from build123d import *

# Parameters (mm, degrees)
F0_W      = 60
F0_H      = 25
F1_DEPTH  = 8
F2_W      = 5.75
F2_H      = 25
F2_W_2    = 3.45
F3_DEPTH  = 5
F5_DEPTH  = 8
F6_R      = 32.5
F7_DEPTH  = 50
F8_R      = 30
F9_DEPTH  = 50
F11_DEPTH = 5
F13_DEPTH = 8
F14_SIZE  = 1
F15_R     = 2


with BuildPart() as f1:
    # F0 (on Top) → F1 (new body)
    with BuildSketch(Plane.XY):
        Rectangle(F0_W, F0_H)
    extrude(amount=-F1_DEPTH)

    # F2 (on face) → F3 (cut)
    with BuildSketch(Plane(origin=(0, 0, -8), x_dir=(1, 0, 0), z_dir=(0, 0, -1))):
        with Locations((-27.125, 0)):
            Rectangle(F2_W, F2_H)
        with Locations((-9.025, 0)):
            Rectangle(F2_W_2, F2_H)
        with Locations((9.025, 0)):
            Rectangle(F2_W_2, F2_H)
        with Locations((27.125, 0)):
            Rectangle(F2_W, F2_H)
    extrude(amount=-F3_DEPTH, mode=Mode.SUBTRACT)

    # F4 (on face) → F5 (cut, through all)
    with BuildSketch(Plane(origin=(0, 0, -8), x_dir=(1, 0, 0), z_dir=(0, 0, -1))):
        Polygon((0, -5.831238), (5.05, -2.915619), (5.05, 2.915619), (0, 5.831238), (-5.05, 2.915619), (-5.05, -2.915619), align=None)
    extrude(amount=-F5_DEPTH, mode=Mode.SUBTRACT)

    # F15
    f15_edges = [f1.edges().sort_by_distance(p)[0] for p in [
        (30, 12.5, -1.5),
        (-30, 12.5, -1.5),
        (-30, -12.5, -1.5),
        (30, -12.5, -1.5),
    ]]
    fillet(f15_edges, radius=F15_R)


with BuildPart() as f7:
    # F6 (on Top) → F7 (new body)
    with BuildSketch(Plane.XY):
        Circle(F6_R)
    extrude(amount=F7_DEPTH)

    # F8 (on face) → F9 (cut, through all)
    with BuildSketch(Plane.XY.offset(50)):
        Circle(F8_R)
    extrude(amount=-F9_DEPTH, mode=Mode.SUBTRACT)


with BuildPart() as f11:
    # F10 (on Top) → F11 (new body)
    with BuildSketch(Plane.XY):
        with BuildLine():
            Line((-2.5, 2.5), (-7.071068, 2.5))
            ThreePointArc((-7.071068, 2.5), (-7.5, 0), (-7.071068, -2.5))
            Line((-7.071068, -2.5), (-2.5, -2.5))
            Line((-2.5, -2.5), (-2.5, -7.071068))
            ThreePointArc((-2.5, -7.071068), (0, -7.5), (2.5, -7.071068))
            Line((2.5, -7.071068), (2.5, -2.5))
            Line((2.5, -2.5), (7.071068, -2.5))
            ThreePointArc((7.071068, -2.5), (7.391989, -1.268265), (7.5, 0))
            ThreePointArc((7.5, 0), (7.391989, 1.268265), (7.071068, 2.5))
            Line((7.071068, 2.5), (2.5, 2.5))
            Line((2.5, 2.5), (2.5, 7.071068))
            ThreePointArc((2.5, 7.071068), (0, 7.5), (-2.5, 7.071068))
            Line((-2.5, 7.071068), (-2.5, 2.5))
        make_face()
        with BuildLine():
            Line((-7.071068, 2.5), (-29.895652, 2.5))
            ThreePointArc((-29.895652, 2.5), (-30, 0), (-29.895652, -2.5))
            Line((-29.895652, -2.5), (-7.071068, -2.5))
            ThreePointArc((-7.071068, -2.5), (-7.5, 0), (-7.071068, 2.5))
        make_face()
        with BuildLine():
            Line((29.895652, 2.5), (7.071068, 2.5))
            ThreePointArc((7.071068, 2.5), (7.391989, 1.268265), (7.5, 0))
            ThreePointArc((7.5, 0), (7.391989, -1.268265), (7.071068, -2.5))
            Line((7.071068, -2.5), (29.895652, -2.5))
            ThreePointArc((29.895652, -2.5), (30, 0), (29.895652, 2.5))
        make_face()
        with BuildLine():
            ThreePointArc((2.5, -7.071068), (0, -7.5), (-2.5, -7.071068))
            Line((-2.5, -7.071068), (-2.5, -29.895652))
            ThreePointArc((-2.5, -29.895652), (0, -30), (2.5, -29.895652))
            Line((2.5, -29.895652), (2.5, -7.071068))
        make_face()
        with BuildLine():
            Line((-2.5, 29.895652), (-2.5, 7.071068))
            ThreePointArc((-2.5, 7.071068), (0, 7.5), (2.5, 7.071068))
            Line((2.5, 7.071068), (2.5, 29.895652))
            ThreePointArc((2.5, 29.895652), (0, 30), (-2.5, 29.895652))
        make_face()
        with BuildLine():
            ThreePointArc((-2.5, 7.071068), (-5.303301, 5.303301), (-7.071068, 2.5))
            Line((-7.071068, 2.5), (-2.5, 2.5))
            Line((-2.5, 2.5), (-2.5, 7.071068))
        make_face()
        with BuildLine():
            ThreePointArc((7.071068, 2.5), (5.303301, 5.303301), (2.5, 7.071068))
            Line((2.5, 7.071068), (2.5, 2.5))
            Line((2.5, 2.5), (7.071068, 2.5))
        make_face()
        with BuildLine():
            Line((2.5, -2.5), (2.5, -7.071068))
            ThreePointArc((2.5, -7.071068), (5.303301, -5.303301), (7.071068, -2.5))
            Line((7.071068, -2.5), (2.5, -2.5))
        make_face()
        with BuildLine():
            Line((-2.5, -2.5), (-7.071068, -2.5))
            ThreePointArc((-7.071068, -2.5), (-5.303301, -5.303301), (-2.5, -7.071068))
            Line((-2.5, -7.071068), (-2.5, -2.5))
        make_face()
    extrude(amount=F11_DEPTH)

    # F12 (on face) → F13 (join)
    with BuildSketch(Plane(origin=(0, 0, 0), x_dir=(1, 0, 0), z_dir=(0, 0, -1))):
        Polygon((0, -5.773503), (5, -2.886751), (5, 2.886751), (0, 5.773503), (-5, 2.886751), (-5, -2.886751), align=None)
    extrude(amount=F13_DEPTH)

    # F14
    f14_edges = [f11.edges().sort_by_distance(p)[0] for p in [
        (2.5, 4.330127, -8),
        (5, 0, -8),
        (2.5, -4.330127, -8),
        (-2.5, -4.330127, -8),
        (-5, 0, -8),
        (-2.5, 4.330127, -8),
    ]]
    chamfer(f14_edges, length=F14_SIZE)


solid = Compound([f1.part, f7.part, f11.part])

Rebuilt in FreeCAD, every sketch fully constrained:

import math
import FreeCAD as App
import Part
import Sketcher
from FreeCAD import Vector
Q = App.Units.Quantity


def edges_at(feature, points):
    """Names of the edges that pass closest to the given points."""
    edges = feature.Shape.Edges
    near = lambda p: min(range(len(edges)), key=lambda i: edges[i].distToShape(Part.Vertex(*p))[0])
    return sorted({f"Edge{near(p) + 1}" for p in points})


def add_polygon(sketch, points):
    """Adds a closed chain of lines whose ends are joined by coincident constraints."""
    first, n = sketch.GeometryCount, len(points)
    for a, b in zip(points, points[1:] + points[:1]):
        sketch.addGeometry(Part.LineSegment(App.Vector(*a, 0), App.Vector(*b, 0)), False)
    for i in range(n):
        sketch.addConstraint(Sketcher.Constraint("Coincident", first + i, 2, first + (i + 1) % n, 1))

doc = App.newDocument("Part")
body = doc.addObject("PartDesign::Body", "Body")

# Sketch on XY plane
sketch1 = doc.addObject("Sketcher::SketchObject", "Sketch")
body.addObject(sketch1)
sketch1.AttachmentSupport = (doc.XY_Plane, [""])
sketch1.MapMode = "FlatFace"
add_polygon(sketch1, [(-30, 12), (-30, -12), (30, -12), (30, 12)])  # lines 0-3
sketch1.addConstraint(Sketcher.Constraint("Vertical", 0))
sketch1.addConstraint(Sketcher.Constraint("Horizontal", 1))
sketch1.addConstraint(Sketcher.Constraint("Vertical", 2))
sketch1.addConstraint(Sketcher.Constraint("Horizontal", 3))
sketch1.addConstraint(Sketcher.Constraint("Symmetric", 0, 2, 2, 2, -1, 1))
sketch1.addConstraint(Sketcher.Constraint("DistanceX", 1, 1, 1, 2, Q("60 mm")))
sketch1.addConstraint(Sketcher.Constraint("DistanceY", 0, 2, 0, 1, Q("25 mm")))
pad1 = doc.addObject("PartDesign::Pad", "Pad")
body.addObject(pad1)
pad1.Profile = sketch1
pad1.Length = 8
pad1.Reversed = True

# Sketch on XY plane
sketch2 = doc.addObject("Sketcher::SketchObject", "Sketch001")
body.addObject(sketch2)
sketch2.AttachmentSupport = (doc.XY_Plane, [""])
sketch2.MapMode = "FlatFace"
sketch2.AttachmentOffset = App.Placement(Vector(0, 0, -8), App.Rotation())
add_polygon(sketch2, [(-30, -12.5), (-30, 12.5), (-24.2, 12.5), (-24.2, -12.5)])  # lines 0-3
add_polygon(sketch2, [(-10.8, -12.5), (-10.8, 12.5), (-7.3, 12.5), (-7.3, -12.5)])  # lines 4-7
add_polygon(sketch2, [(7.3, -12.5), (7.3, 12.5), (10.8, 12.5), (10.8, -12.5)])  # lines 8-11
add_polygon(sketch2, [(24.2, -12.5), (24.2, 12.5), (30, 12.5), (30, -12.5)])  # lines 12-15
sketch2.addConstraint(Sketcher.Constraint("Vertical", 0))
sketch2.addConstraint(Sketcher.Constraint("Horizontal", 1))
sketch2.addConstraint(Sketcher.Constraint("Vertical", 2))
sketch2.addConstraint(Sketcher.Constraint("Horizontal", 3))
sketch2.addConstraint(Sketcher.Constraint("Vertical", 4))
sketch2.addConstraint(Sketcher.Constraint("Horizontal", 5))
sketch2.addConstraint(Sketcher.Constraint("Vertical", 6))
sketch2.addConstraint(Sketcher.Constraint("Horizontal", 7))
sketch2.addConstraint(Sketcher.Constraint("Vertical", 8))
sketch2.addConstraint(Sketcher.Constraint("Horizontal", 9))
sketch2.addConstraint(Sketcher.Constraint("Vertical", 10))
sketch2.addConstraint(Sketcher.Constraint("Horizontal", 11))
sketch2.addConstraint(Sketcher.Constraint("Vertical", 12))
sketch2.addConstraint(Sketcher.Constraint("Horizontal", 13))
sketch2.addConstraint(Sketcher.Constraint("Vertical", 14))
sketch2.addConstraint(Sketcher.Constraint("Horizontal", 15))
sketch2.addConstraint(Sketcher.Constraint("Symmetric", 6, 2, 8, 2, -1, 1))
sketch2.addConstraint(Sketcher.Constraint("Symmetric", 4, 2, 10, 2, -1, 1))
sketch2.addConstraint(Sketcher.Constraint("Symmetric", 2, 2, 12, 2, -1, 1))
sketch2.addConstraint(Sketcher.Constraint("Symmetric", 0, 2, 14, 2, -1, 1))
sketch2.addConstraint(Sketcher.Constraint("Horizontal", 1, 2, 4, 2))
sketch2.addConstraint(Sketcher.Constraint("Horizontal", 3, 2, 6, 2))
sketch2.addConstraint(Sketcher.Constraint("Horizontal", 5, 2, 8, 2))
sketch2.addConstraint(Sketcher.Constraint("DistanceY", 0, 1, 0, 2, Q("25 mm")))
sketch2.addConstraint(Sketcher.Constraint("DistanceX", 0, 2, -1, 1, Q("30 mm")))
sketch2.addConstraint(Sketcher.Constraint("DistanceX", 1, 1, 1, 2, Q("5.75 mm")))
sketch2.addConstraint(Sketcher.Constraint("DistanceX", 5, 1, 5, 2, Q("3.45 mm")))
sketch2.addConstraint(Sketcher.Constraint("DistanceX", 5, 2, -1, 1, Q("7.3 mm")))
pocket1 = doc.addObject("PartDesign::Pocket", "Pocket")
body.addObject(pocket1)
pocket1.Profile = sketch2
pocket1.Length = 5
pocket1.Reversed = True

# Sketch on XY plane
sketch3 = doc.addObject("Sketcher::SketchObject", "Sketch002")
body.addObject(sketch3)
sketch3.AttachmentSupport = (doc.XY_Plane, [""])
sketch3.MapMode = "FlatFace"
sketch3.AttachmentOffset = App.Placement(Vector(0, 0, -8), App.Rotation())
add_polygon(sketch3, [(0, 6), (5, 3), (5, -3), (0, -6), (-5, -3), (-5, 3)])  # lines 0-5
sketch3.addConstraint(Sketcher.Constraint("Vertical", 1))
sketch3.addConstraint(Sketcher.Constraint("Vertical", 4))
sketch3.addConstraint(Sketcher.Constraint("Symmetric", 0, 2, 3, 2, -1, 1))
sketch3.addConstraint(Sketcher.Constraint("Symmetric", 2, 2, 5, 2, -1, 1))
sketch3.addConstraint(Sketcher.Constraint("PointOnObject", 2, 2, -2))
sketch3.addConstraint(Sketcher.Constraint("Parallel", 2, 5))
sketch3.addConstraint(Sketcher.Constraint("Horizontal", 1, 2, 3, 2))
sketch3.addConstraint(Sketcher.Constraint("Angle", 0, Q("-30.000001 deg")))
sketch3.addConstraint(Sketcher.Constraint("DistanceX", 3, 2, 1, 2, Q("10.1 mm")))
sketch3.addConstraint(Sketcher.Constraint("DistanceY", 1, 2, 1, 1, Q("5.831238 mm")))
pocket2 = doc.addObject("PartDesign::Pocket", "Pocket001")
body.addObject(pocket2)
pocket2.Profile = sketch3
pocket2.Type = "ThroughAll"
pocket2.Reversed = True
doc.recompute()

fillet = doc.addObject("PartDesign::Fillet", "Fillet")
body.addObject(fillet)
fillet.Base = (pocket2, edges_at(pocket2, [
    (30, 12.5, -1.5),
    (-30, 12.5, -1.5),
    (-30, -12.5, -1.5),
    (30, -12.5, -1.5),
]))
fillet.Radius = 2
body2 = doc.addObject("PartDesign::Body", "Body001")

# Sketch on XY plane
sketch4 = doc.addObject("Sketcher::SketchObject", "Sketch003")
body2.addObject(sketch4)
sketch4.AttachmentSupport = (doc.getObject("XY_Plane001"), [""])
sketch4.MapMode = "FlatFace"
sketch4.addGeometry(Part.Circle(Vector(0, 0, 0), Vector(0, 0, 1), 32), False)
sketch4.addConstraint(Sketcher.Constraint("Coincident", 0, 3, -1, 1))
sketch4.addConstraint(Sketcher.Constraint("Diameter", 0, Q("65 mm")))
pad2 = doc.addObject("PartDesign::Pad", "Pad001")
body2.addObject(pad2)
pad2.Profile = sketch4
pad2.Length = 50

# Sketch on XY plane
sketch5 = doc.addObject("Sketcher::SketchObject", "Sketch004")
body2.addObject(sketch5)
sketch5.AttachmentSupport = (doc.getObject("XY_Plane001"), [""])
sketch5.MapMode = "FlatFace"
sketch5.AttachmentOffset = App.Placement(Vector(0, 0, 50), App.Rotation())
sketch5.addGeometry(Part.Circle(Vector(0, 0, 0), Vector(0, 0, 1), 30), False)
sketch5.addConstraint(Sketcher.Constraint("Coincident", 0, 3, -1, 1))
sketch5.addConstraint(Sketcher.Constraint("Diameter", 0, Q("60 mm")))
pocket3 = doc.addObject("PartDesign::Pocket", "Pocket002")
body2.addObject(pocket3)
pocket3.Profile = sketch5
pocket3.Type = "ThroughAll"
body3 = doc.addObject("PartDesign::Body", "Body002")

# Sketch on XY plane
sketch6 = doc.addObject("Sketcher::SketchObject", "Sketch005")
body3.addObject(sketch6)
sketch6.AttachmentSupport = (doc.getObject("XY_Plane002"), [""])
sketch6.MapMode = "FlatFace"
sketch6.addGeometry(Part.LineSegment(Vector(-7, 2, 0), Vector(-30, 2, 0)), False)
sketch6.addGeometry(Part.ArcOfCircle(Part.Circle(Vector(0, 0, 0), Vector(0, 0, 1), 30), math.radians(175.22), math.radians(184.78)), False)
sketch6.addGeometry(Part.LineSegment(Vector(-30, -2, 0), Vector(-7, -2, 0)), False)
sketch6.addGeometry(Part.ArcOfCircle(Part.Circle(Vector(0, 0, 0), Vector(0, 0, 1), 7), math.radians(-161), math.radians(-109)), False)
sketch6.addGeometry(Part.LineSegment(Vector(-2, -7, 0), Vector(-2, -30, 0)), False)
sketch6.addGeometry(Part.ArcOfCircle(Part.Circle(Vector(0, 0, 0), Vector(0, 0, 1), 30), math.radians(-94.78), math.radians(-85.22)), False)
sketch6.addGeometry(Part.LineSegment(Vector(2, -30, 0), Vector(2, -7, 0)), False)
sketch6.addGeometry(Part.ArcOfCircle(Part.Circle(Vector(0, 0, 0), Vector(0, 0, 1), 7), math.radians(-71), math.radians(-19)), False)
sketch6.addGeometry(Part.LineSegment(Vector(7, -2, 0), Vector(30, -2, 0)), False)
sketch6.addGeometry(Part.ArcOfCircle(Part.Circle(Vector(0, 0, 0), Vector(0, 0, 1), 30), math.radians(-4.78), math.radians(4.78)), False)
sketch6.addGeometry(Part.LineSegment(Vector(30, 2, 0), Vector(7, 2, 0)), False)
sketch6.addGeometry(Part.ArcOfCircle(Part.Circle(Vector(0, 0, 0), Vector(0, 0, 1), 7), math.radians(19), math.radians(71)), False)
sketch6.addGeometry(Part.LineSegment(Vector(2, 7, 0), Vector(2, 30, 0)), False)
sketch6.addGeometry(Part.ArcOfCircle(Part.Circle(Vector(0, 0, 0), Vector(0, 0, 1), 30), math.radians(85.22), math.radians(94.78)), False)
sketch6.addGeometry(Part.LineSegment(Vector(-2, 30, 0), Vector(-2, 7, 0)), False)
sketch6.addGeometry(Part.ArcOfCircle(Part.Circle(Vector(0, 0, 0), Vector(0, 0, 1), 7), math.radians(109), math.radians(161)), False)
sketch6.addConstraint(Sketcher.Constraint("Coincident", 0, 2, 1, 1))
sketch6.addConstraint(Sketcher.Constraint("Coincident", 1, 2, 2, 1))
sketch6.addConstraint(Sketcher.Constraint("Coincident", 2, 2, 3, 1))
sketch6.addConstraint(Sketcher.Constraint("Coincident", 3, 2, 4, 1))
sketch6.addConstraint(Sketcher.Constraint("Coincident", 4, 2, 5, 1))
sketch6.addConstraint(Sketcher.Constraint("Coincident", 5, 2, 6, 1))
sketch6.addConstraint(Sketcher.Constraint("Coincident", 6, 2, 7, 1))
sketch6.addConstraint(Sketcher.Constraint("Coincident", 7, 2, 8, 1))
sketch6.addConstraint(Sketcher.Constraint("Coincident", 8, 2, 9, 1))
sketch6.addConstraint(Sketcher.Constraint("Coincident", 9, 2, 10, 1))
sketch6.addConstraint(Sketcher.Constraint("Coincident", 10, 2, 11, 1))
sketch6.addConstraint(Sketcher.Constraint("Coincident", 11, 2, 12, 1))
sketch6.addConstraint(Sketcher.Constraint("Coincident", 12, 2, 13, 1))
sketch6.addConstraint(Sketcher.Constraint("Coincident", 13, 2, 14, 1))
sketch6.addConstraint(Sketcher.Constraint("Coincident", 14, 2, 15, 1))
sketch6.addConstraint(Sketcher.Constraint("Coincident", 15, 2, 0, 1))
sketch6.addConstraint(Sketcher.Constraint("Horizontal", 0))
sketch6.addConstraint(Sketcher.Constraint("Horizontal", 2))
sketch6.addConstraint(Sketcher.Constraint("Vertical", 4))
sketch6.addConstraint(Sketcher.Constraint("Vertical", 6))
sketch6.addConstraint(Sketcher.Constraint("Horizontal", 8))
sketch6.addConstraint(Sketcher.Constraint("Horizontal", 10))
sketch6.addConstraint(Sketcher.Constraint("Vertical", 12))
sketch6.addConstraint(Sketcher.Constraint("Vertical", 14))
sketch6.addConstraint(Sketcher.Constraint("Coincident", 3, 3, -1, 1))
sketch6.addConstraint(Sketcher.Constraint("Coincident", 7, 3, -1, 1))
sketch6.addConstraint(Sketcher.Constraint("Coincident", 11, 3, -1, 1))
sketch6.addConstraint(Sketcher.Constraint("Coincident", 15, 3, -1, 1))
sketch6.addConstraint(Sketcher.Constraint("Equal", 1, 5))
sketch6.addConstraint(Sketcher.Constraint("Equal", 3, 7))
sketch6.addConstraint(Sketcher.Constraint("Equal", 5, 9))
sketch6.addConstraint(Sketcher.Constraint("Equal", 7, 11))
sketch6.addConstraint(Sketcher.Constraint("Equal", 9, 13))
sketch6.addConstraint(Sketcher.Constraint("Equal", 11, 15))
sketch6.addConstraint(Sketcher.Constraint("Symmetric", 1, 3, 9, 3, -1, 1))
sketch6.addConstraint(Sketcher.Constraint("Symmetric", 5, 3, 13, 3, -1, 1))
sketch6.addConstraint(Sketcher.Constraint("Symmetric", 4, 2, 5, 2, -2))
sketch6.addConstraint(Sketcher.Constraint("Symmetric", 1, 2, 8, 2, -2))
sketch6.addConstraint(Sketcher.Constraint("Horizontal", 0, 2, 9, 2))
sketch6.addConstraint(Sketcher.Constraint("Horizontal", 12, 2, 13, 2))
sketch6.addConstraint(Sketcher.Constraint("Vertical", 0, 2, 1, 2))
sketch6.addConstraint(Sketcher.Constraint("Vertical", 6, 2, 11, 2))
sketch6.addConstraint(Sketcher.Constraint("Equal", 10, 4))
sketch6.addConstraint(Sketcher.Constraint("Radius", 3, Q("7.5 mm")))
sketch6.addConstraint(Sketcher.Constraint("DistanceY", 1, 2, 0, 2, Q("5 mm")))
sketch6.addConstraint(Sketcher.Constraint("DistanceX", 4, 2, 5, 2, Q("5 mm")))
sketch6.addConstraint(Sketcher.Constraint("Radius", 1, Q("30.000041 mm")))
sketch6.addConstraint(Sketcher.Constraint("DistanceX", 0, 2, 0, 1, Q("22.824584 mm")))
pad3 = doc.addObject("PartDesign::Pad", "Pad002")
body3.addObject(pad3)
pad3.Profile = sketch6
pad3.Length = 5

# Sketch on XY plane
sketch7 = doc.addObject("Sketcher::SketchObject", "Sketch006")
body3.addObject(sketch7)
sketch7.AttachmentSupport = (doc.getObject("XY_Plane002"), [""])
sketch7.MapMode = "FlatFace"
add_polygon(sketch7, [(0, 6), (5, 3), (5, -3), (0, -6), (-5, -3), (-5, 3)])  # lines 0-5
sketch7.addConstraint(Sketcher.Constraint("Vertical", 1))
sketch7.addConstraint(Sketcher.Constraint("Vertical", 4))
sketch7.addConstraint(Sketcher.Constraint("Symmetric", 0, 2, 3, 2, -1, 1))
sketch7.addConstraint(Sketcher.Constraint("Symmetric", 2, 2, 5, 2, -1, 1))
sketch7.addConstraint(Sketcher.Constraint("PointOnObject", 2, 2, -2))
sketch7.addConstraint(Sketcher.Constraint("Parallel", 2, 5))
sketch7.addConstraint(Sketcher.Constraint("Horizontal", 1, 2, 3, 2))
sketch7.addConstraint(Sketcher.Constraint("Angle", 0, Q("-30.000006 deg")))
sketch7.addConstraint(Sketcher.Constraint("DistanceX", -1, 1, 0, 2, Q("5 mm")))
sketch7.addConstraint(Sketcher.Constraint("DistanceY", 1, 2, 1, 1, Q("5.773502 mm")))
pad4 = doc.addObject("PartDesign::Pad", "Pad003")
body3.addObject(pad4)
pad4.Profile = sketch7
pad4.Length = 8
pad4.Reversed = True
doc.recompute()

chamfer = doc.addObject("PartDesign::Chamfer", "Chamfer")
body3.addObject(chamfer)
chamfer.Base = (pad4, edges_at(pad4, [
    (2.5, 4.33, -8),
    (5, 0, -8),
    (2.5, -4.33, -8),
    (-2.5, -4.33, -8),
    (-5, 0, -8),
    (-2.5, 4.33, -8),
]))
chamfer.Size = 1

doc.recompute()
